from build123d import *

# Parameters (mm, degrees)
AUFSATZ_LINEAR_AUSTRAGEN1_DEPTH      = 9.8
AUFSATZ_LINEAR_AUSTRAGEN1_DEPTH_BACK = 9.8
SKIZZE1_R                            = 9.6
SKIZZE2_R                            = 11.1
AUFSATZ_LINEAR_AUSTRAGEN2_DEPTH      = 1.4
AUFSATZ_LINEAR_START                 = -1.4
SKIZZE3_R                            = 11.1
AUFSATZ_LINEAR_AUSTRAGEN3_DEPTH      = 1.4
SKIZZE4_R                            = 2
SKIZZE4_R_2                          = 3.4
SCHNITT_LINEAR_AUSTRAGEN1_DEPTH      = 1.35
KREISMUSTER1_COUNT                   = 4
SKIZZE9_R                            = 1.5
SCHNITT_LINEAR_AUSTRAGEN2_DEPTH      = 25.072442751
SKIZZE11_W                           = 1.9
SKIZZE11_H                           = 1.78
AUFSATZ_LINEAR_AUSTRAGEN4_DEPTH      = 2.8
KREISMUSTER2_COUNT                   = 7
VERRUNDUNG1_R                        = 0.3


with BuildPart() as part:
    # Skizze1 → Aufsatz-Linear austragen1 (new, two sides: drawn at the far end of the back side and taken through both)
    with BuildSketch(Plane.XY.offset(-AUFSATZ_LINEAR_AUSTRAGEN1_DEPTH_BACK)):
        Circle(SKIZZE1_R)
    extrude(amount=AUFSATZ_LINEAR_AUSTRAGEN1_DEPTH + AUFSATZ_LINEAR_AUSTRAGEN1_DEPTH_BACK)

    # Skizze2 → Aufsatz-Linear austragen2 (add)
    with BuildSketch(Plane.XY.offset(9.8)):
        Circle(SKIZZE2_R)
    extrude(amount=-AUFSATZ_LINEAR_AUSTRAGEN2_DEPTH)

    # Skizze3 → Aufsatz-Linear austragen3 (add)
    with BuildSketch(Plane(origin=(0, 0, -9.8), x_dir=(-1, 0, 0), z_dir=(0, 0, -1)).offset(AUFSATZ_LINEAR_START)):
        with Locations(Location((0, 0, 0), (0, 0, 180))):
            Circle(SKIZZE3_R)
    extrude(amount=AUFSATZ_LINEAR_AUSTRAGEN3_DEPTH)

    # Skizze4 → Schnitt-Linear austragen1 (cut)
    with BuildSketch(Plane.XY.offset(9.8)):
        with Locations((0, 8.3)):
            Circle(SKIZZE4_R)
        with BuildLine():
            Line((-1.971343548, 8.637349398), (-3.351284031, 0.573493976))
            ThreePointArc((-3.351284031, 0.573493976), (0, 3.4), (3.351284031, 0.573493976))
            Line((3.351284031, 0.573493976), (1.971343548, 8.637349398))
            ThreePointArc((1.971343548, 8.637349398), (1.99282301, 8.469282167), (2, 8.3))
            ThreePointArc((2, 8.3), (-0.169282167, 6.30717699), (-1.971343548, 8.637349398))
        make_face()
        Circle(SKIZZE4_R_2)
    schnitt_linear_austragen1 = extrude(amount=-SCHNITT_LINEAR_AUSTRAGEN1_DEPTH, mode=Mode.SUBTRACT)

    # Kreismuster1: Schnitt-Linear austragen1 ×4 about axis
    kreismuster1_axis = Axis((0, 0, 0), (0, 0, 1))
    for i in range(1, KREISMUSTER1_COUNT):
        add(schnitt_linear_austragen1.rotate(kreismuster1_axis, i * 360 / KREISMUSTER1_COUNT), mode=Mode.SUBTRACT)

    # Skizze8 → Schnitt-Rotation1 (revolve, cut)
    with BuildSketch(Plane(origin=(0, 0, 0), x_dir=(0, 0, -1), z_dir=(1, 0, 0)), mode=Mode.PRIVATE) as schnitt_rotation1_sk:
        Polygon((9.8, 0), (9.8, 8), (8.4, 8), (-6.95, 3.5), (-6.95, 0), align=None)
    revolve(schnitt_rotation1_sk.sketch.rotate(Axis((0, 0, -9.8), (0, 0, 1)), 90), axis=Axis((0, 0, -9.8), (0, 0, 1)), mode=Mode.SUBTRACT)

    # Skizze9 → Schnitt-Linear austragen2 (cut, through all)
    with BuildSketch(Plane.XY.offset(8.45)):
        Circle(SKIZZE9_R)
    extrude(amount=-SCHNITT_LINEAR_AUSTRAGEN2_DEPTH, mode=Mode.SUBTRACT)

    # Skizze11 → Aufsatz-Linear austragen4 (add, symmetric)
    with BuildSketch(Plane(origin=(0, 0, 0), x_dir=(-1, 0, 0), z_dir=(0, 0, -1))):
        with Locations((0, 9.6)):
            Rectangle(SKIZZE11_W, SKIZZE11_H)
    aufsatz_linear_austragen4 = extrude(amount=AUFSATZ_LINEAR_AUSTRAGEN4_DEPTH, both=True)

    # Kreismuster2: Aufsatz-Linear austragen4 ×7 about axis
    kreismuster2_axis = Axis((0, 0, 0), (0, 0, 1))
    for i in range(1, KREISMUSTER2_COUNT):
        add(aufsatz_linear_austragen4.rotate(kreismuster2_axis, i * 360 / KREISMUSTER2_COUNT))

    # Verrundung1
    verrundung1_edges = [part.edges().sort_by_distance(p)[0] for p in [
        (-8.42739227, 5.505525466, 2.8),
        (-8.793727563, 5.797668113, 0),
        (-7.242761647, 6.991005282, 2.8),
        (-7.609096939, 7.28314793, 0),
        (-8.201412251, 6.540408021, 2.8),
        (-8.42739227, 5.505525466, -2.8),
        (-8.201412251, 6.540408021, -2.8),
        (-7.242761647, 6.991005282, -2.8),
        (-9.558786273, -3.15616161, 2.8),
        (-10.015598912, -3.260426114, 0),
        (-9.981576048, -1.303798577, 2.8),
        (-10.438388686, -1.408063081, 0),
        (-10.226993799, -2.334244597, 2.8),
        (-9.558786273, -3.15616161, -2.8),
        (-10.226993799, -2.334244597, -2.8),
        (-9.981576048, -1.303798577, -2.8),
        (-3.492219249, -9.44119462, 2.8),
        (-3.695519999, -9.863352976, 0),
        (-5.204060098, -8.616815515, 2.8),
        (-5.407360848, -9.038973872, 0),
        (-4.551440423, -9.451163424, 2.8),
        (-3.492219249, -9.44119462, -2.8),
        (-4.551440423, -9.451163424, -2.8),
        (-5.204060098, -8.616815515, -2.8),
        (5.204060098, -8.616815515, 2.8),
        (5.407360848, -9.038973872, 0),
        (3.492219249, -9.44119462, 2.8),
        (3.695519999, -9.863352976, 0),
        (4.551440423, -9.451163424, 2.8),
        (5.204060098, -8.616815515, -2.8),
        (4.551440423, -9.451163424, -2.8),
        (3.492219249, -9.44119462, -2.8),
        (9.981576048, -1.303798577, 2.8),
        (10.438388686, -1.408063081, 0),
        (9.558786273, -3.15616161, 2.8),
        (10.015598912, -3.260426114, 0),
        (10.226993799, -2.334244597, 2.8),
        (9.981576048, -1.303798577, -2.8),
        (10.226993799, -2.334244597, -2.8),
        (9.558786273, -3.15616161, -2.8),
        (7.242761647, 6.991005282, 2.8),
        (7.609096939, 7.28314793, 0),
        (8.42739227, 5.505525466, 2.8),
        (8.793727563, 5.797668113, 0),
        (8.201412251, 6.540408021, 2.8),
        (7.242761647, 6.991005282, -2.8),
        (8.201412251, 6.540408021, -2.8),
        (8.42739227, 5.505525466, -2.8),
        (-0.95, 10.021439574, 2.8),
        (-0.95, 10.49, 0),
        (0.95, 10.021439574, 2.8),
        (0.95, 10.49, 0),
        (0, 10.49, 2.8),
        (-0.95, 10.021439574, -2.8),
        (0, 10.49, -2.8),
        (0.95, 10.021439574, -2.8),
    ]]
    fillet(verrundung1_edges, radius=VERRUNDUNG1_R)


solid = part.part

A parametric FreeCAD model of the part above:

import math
import FreeCAD as App
import Part
import Sketcher
from FreeCAD import Vector
Q = App.Units.Quantity


def edges_at(feature, points):
    """Names of the edges that pass closest to the given points."""
    edges = feature.Shape.Edges
    near = lambda p: min(range(len(edges)), key=lambda i: edges[i].distToShape(Part.Vertex(*p))[0])
    return sorted({f"Edge{near(p) + 1}" for p in points})


def add_polygon(sketch, points):
    """Adds a closed chain of lines whose ends are joined by coincident constraints."""
    first, n = sketch.GeometryCount, len(points)
    for a, b in zip(points, points[1:] + points[:1]):
        sketch.addGeometry(Part.LineSegment(App.Vector(*a, 0), App.Vector(*b, 0)), False)
    for i in range(n):
        sketch.addConstraint(Sketcher.Constraint("Coincident", first + i, 2, first + (i + 1) % n, 1))

doc = App.newDocument("Part")
body = doc.addObject("PartDesign::Body", "Body")

# Sketch on XY plane
sketch1 = body.newObject("Sketcher::SketchObject", "Sketch")
sketch1.AttachmentSupport = (doc.getObject("XY_Plane"), [""])
sketch1.MapMode = "FlatFace"
sketch1.addGeometry(Part.Circle(Vector(0, 0, 0), Vector(0, 0, 1), 9.6), False)
sketch1.addConstraint(Sketcher.Constraint("Coincident", 0, 3, -1, 1))
sketch1.addConstraint(Sketcher.Constraint("Diameter", 0, Q("19.2 mm")))
pad1 = body.newObject("PartDesign::Pad", "Pad")
pad1.Profile = sketch1
pad1.Type = "TwoLengths"
pad1.Length = 9.8
pad1.Length2 = 9.8

# Sketch on XY plane
sketch2 = body.newObject("Sketcher::SketchObject", "Sketch001")
sketch2.AttachmentSupport = (doc.getObject("XY_Plane"), [""])
sketch2.MapMode = "FlatFace"
sketch2.AttachmentOffset = App.Placement(Vector(0, 0, 9.8), App.Rotation())
sketch2.addGeometry(Part.Circle(Vector(0, 0, 0), Vector(0, 0, 1), 11.1), False)
sketch2.addConstraint(Sketcher.Constraint("Coincident", 0, 3, -1, 1))
sketch2.addConstraint(Sketcher.Constraint("Diameter", 0, Q("22.2 mm")))
pad2 = body.newObject("PartDesign::Pad", "Pad001")
pad2.Profile = sketch2
pad2.Length = 1.4
pad2.Reversed = True

# Sketch on XY plane
sketch3 = body.newObject("Sketcher::SketchObject", "Sketch002")
sketch3.AttachmentSupport = (doc.getObject("XY_Plane"), [""])
sketch3.MapMode = "FlatFace"
sketch3.AttachmentOffset = App.Placement(Vector(0, 0, -8.4), App.Rotation())
sketch3.addGeometry(Part.Circle(Vector(0, 0, 0), Vector(0, 0, 1), 11.1), False)
sketch3.addConstraint(Sketcher.Constraint("Coincident", 0, 3, -1, 1))
sketch3.addConstraint(Sketcher.Constraint("Diameter", 0, Q("22.2 mm")))
pad3 = body.newObject("PartDesign::Pad", "Pad002")
pad3.Profile = sketch3
pad3.Length = 1.4
pad3.Reversed = True

# Sketch on XY plane
sketch4 = body.newObject("Sketcher::SketchObject", "Sketch003")
sketch4.AttachmentSupport = (doc.getObject("XY_Plane"), [""])
sketch4.MapMode = "FlatFace"
sketch4.AttachmentOffset = App.Placement(Vector(0, 0, 9.8), App.Rotation())
sketch4.addGeometry(Part.ArcOfCircle(Part.Circle(Vector(0, 8.3, 0), Vector(0, 0, 1), 2), math.radians(9.710772), math.radians(170.289228)), False)
sketch4.addGeometry(Part.LineSegment(Vector(-1.971344, 8.637349, 0), Vector(-3.351284, 0.573494, 0)), False)
sketch4.addGeometry(Part.ArcOfCircle(Part.Circle(Vector(0, 0, 0), Vector(0, 0, 1), 3.4), math.radians(170.289228), math.radians(369.710772)), False)
sketch4.addGeometry(Part.LineSegment(Vector(3.351284, 0.573494, 0), Vector(1.971344, 8.637349, 0)), False)
sketch4.addConstraint(Sketcher.Constraint("Tangent", 0, 2, 1, 1))
sketch4.addConstraint(Sketcher.Constraint("Tangent", 1, 2, 2, 1))
sketch4.addConstraint(Sketcher.Constraint("Tangent", 2, 2, 3, 1))
sketch4.addConstraint(Sketcher.Constraint("Tangent", 3, 2, 0, 1))
sketch4.addConstraint(Sketcher.Constraint("Coincident", 2, 3, -1, 1))
sketch4.addConstraint(Sketcher.Constraint("PointOnObject", 0, 3, -2))
sketch4.addConstraint(Sketcher.Constraint("Radius", 0, Q("2 mm")))
sketch4.addConstraint(Sketcher.Constraint("Radius", 2, Q("3.4 mm")))
sketch4.addConstraint(Sketcher.Constraint("DistanceY", -1, 1, 0, 3, Q("8.3 mm")))
pocket1 = body.newObject("PartDesign::Pocket", "Pocket")
pocket1.Profile = sketch4
pocket1.Length = 1.35
doc.recompute()

polarpattern = body.newObject("PartDesign::PolarPattern", "PolarPattern")
polarpattern.Originals = [pocket1]
polarpattern.Axis = (doc.getObject("Z_Axis"), [""])
polarpattern.Angle = 360
polarpattern.Occurrences = 4
body.Tip = polarpattern

# Sketch on YZ plane
sketch5 = body.newObject("Sketcher::SketchObject", "Sketch004")
sketch5.AttachmentSupport = (doc.getObject("YZ_Plane"), [""])
sketch5.MapMode = "FlatFace"
add_polygon(sketch5, [(0, -9.8), (8, -9.8), (8, -8.4), (3.5, 6.95), (0, 6.95)])  # lines 0-4
sketch5.addConstraint(Sketcher.Constraint("Horizontal", 0))
sketch5.addConstraint(Sketcher.Constraint("Vertical", 1))
sketch5.addConstraint(Sketcher.Constraint("Horizontal", 3))
sketch5.addConstraint(Sketcher.Constraint("Vertical", 4))
sketch5.addConstraint(Sketcher.Constraint("PointOnObject", 3, 2, -2))
sketch5.addConstraint(Sketcher.Constraint("DistanceX", 0, 1, 0, 2, Q("8 mm")))
sketch5.addConstraint(Sketcher.Constraint("DistanceX", 3, 2, 3, 1, Q("3.5 mm")))
sketch5.addConstraint(Sketcher.Constraint("DistanceY", 1, 1, 1, 2, Q("1.4 mm")))
sketch5.addConstraint(Sketcher.Constraint("DistanceY", 4, 2, 4, 1, Q("16.75 mm")))
sketch5.addConstraint(Sketcher.Constraint("DistanceY", 0, 2, -1, 1, Q("9.8 mm")))
groove = body.newObject("PartDesign::Groove", "Groove")
groove.Profile = sketch5
groove.ReferenceAxis = (sketch5, ["V_Axis"])
groove.Angle = 360

# Sketch on XY plane
sketch6 = body.newObject("Sketcher::SketchObject", "Sketch005")
sketch6.AttachmentSupport = (doc.getObject("XY_Plane"), [""])
sketch6.MapMode = "FlatFace"
sketch6.AttachmentOffset = App.Placement(Vector(0, 0, 8.45), App.Rotation())
sketch6.addGeometry(Part.Circle(Vector(0, 0, 0), Vector(0, 0, 1), 1.5), False)
sketch6.addConstraint(Sketcher.Constraint("Coincident", 0, 3, -1, 1))
sketch6.addConstraint(Sketcher.Constraint("Diameter", 0, Q("3 mm")))
pocket2 = body.newObject("PartDesign::Pocket", "Pocket001")
pocket2.Profile = sketch6
pocket2.Type = "ThroughAll"

# Sketch on XY plane
sketch7 = body.newObject("Sketcher::SketchObject", "Sketch006")
sketch7.AttachmentSupport = (doc.getObject("XY_Plane"), [""])
sketch7.MapMode = "FlatFace"
add_polygon(sketch7, [(0.95, 10.49), (0.95, 8.71), (-0.95, 8.71), (-0.95, 10.49)])  # lines 0-3
sketch7.addConstraint(Sketcher.Constraint("Vertical", 0))
sketch7.addConstraint(Sketcher.Constraint("Horizontal", 1))
sketch7.addConstraint(Sketcher.Constraint("Vertical", 2))
sketch7.addConstraint(Sketcher.Constraint("Horizontal", 3))
sketch7.addConstraint(Sketcher.Constraint("DistanceX", 1, 2, 1, 1, Q("1.9 mm")))
sketch7.addConstraint(Sketcher.Constraint("DistanceY", 0, 2, 0, 1, Q("1.78 mm")))
sketch7.addConstraint(Sketcher.Constraint("DistanceX", -1, 1, 0, 2, Q("0.95 mm")))
sketch7.addConstraint(Sketcher.Constraint("DistanceY", -1, 1, 0, 2, Q("8.71 mm")))
pad4 = body.newObject("PartDesign::Pad", "Pad003")
pad4.Profile = sketch7
pad4.Length = 5.6
pad4.Midplane = True
doc.recompute()

polarpattern2 = body.newObject("PartDesign::PolarPattern", "PolarPattern001")
polarpattern2.Originals = [pad4]
polarpattern2.Axis = (doc.getObject("Z_Axis"), [""])
polarpattern2.Angle = 360
polarpattern2.Occurrences = 7
body.Tip = polarpattern2
doc.recompute()

fillet = body.newObject("PartDesign::Fillet", "Fillet")
fillet.Base = (polarpattern2, edges_at(polarpattern2, [
    (-8.427, 5.506, 2.8),
    (-8.794, 5.798, 0),
    (-7.243, 6.991, 2.8),
    (-7.609, 7.283, 0),
    (-8.201, 6.54, 2.8),
    (-8.427, 5.506, -2.8),
    (-8.201, 6.54, -2.8),
    (-7.243, 6.991, -2.8),
    (-9.559, -3.156, 2.8),
    (-10.016, -3.26, 0),
    (-9.982, -1.304, 2.8),
    (-10.438, -1.408, 0),
    (-10.227, -2.334, 2.8),
    (-9.559, -3.156, -2.8),
    (-10.227, -2.334, -2.8),
    (-9.982, -1.304, -2.8),
    (-3.492, -9.441, 2.8),
    (-3.696, -9.863, 0),
    (-5.204, -8.617, 2.8),
    (-5.407, -9.039, 0),
    (-4.551, -9.451, 2.8),
    (-3.492, -9.441, -2.8),
    (-4.551, -9.451, -2.8),
    (-5.204, -8.617, -2.8),
    (5.204, -8.617, 2.8),
    (5.407, -9.039, 0),
    (3.492, -9.441, 2.8),
    (3.696, -9.863, 0),
    (4.551, -9.451, 2.8),
    (5.204, -8.617, -2.8),
    (4.551, -9.451, -2.8),
    (3.492, -9.441, -2.8),
    (9.982, -1.304, 2.8),
    (10.438, -1.408, 0),
    (9.559, -3.156, 2.8),
    (10.016, -3.26, 0),
    (10.227, -2.334, 2.8),
    (9.982, -1.304, -2.8),
    (10.227, -2.334, -2.8),
    (9.559, -3.156, -2.8),
    (7.243, 6.991, 2.8),
    (7.609, 7.283, 0),
    (8.427, 5.506, 2.8),
    (8.794, 5.798, 0),
    (8.201, 6.54, 2.8),
    (7.243, 6.991, -2.8),
    (8.201, 6.54, -2.8),
    (8.427, 5.506, -2.8),
    (-0.95, 10.021, 2.8),
    (-0.95, 10.49, 0),
    (0.95, 10.021, 2.8),
    (0.95, 10.49, 0),
    (0, 10.49, 2.8),
    (-0.95, 10.021, -2.8),
    (0, 10.49, -2.8),
    (0.95, 10.021, -2.8),
]))
fillet.Radius = 0.3

doc.recompute()
